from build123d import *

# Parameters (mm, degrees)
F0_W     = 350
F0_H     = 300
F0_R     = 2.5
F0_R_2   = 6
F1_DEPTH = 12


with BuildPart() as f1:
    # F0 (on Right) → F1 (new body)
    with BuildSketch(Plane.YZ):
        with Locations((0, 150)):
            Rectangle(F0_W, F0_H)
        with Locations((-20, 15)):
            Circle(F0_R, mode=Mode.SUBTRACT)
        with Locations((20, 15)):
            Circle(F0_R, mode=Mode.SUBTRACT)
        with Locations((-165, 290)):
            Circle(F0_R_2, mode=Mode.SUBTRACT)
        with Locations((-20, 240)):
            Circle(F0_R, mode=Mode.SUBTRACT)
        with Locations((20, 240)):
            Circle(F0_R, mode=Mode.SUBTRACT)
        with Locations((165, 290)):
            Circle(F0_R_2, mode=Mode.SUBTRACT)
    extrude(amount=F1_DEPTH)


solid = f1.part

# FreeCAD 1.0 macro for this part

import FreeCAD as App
import Part
import Sketcher
from FreeCAD import Vector


def add_polygon(sketch, points):
    """Adds a closed chain of lines whose ends are joined by coincident constraints."""
    first, n = sketch.GeometryCount, len(points)
    for a, b in zip(points, points[1:] + points[:1]):
        sketch.addGeometry(Part.LineSegment(App.Vector(*a, 0), App.Vector(*b, 0)), False)
    for i in range(n):
        sketch.addConstraint(Sketcher.Constraint("Coincident", first + i, 2, first + (i + 1) % n, 1))

doc = App.newDocument("Part")
params = doc.addObject("Spreadsheet::Sheet", "Params")
for row, (alias, value) in enumerate([
    ("sketch1_diameter", "5 mm"),
    ("sketch1_diameter2", "12 mm"),
    ("sketch1_width", "350 mm"),
    ("sketch1_height", "300 mm"),
    ("pad1_length", "12 mm"),
], start=1):
    params.set(f"A{row}", alias)
    params.set(f"B{row}", "=" + value)
    params.setAlias(f"B{row}", alias)

body = doc.addObject("PartDesign::Body", "Body")

# Sketch on YZ plane
sketch1 = body.newObject("Sketcher::SketchObject", "Sketch")
sketch1.AttachmentSupport = (doc.getObject("YZ_Plane"), [""])
sketch1.MapMode = "FlatFace"
add_polygon(sketch1, [(-175, 300), (-175, 0), (175, 0), (175, 300)])  # lines 0-3
sketch1.addGeometry(Part.Circle(Vector(-20, 15, 0), Vector(0, 0, 1), 2.5), False)  # 4
sketch1.addGeometry(Part.Circle(Vector(20, 15, 0), Vector(0, 0, 1), 2.5), False)  # 5
sketch1.addGeometry(Part.Circle(Vector(-165, 290, 0), Vector(0, 0, 1), 6), False)  # 6
sketch1.addGeometry(Part.Circle(Vector(-20, 240, 0), Vector(0, 0, 1), 2.5), False)  # 7
sketch1.addGeometry(Part.Circle(Vector(20, 240, 0), Vector(0, 0, 1), 2.5), False)  # 8
sketch1.addGeometry(Part.Circle(Vector(165, 290, 0), Vector(0, 0, 1), 6), False)  # 9
sketch1.addConstraint([
    Sketcher.Constraint("Vertical", 0),
    Sketcher.Constraint("Horizontal", 1),
    Sketcher.Constraint("Vertical", 2),
    Sketcher.Constraint("Horizontal", 3),
    Sketcher.Constraint("Equal", 4, 5),
    Sketcher.Constraint("Equal", 5, 7),
    Sketcher.Constraint("Equal", 7, 8),
    Sketcher.Constraint("Equal", 6, 9),
    Sketcher.Constraint("Symmetric", 0, 2, 1, 2, -1, 1),
    Sketcher.Constraint("Symmetric", 4, 3, 5, 3, -2),
    Sketcher.Constraint("Symmetric", 7, 3, 8, 3, -2),
    Sketcher.Constraint("Symmetric", 6, 3, 9, 3, -2),
    Sketcher.Constraint("Vertical", 4, 3, 7, 3),
    Sketcher.Constraint("Diameter", 4, 5.0),
    Sketcher.Constraint("Diameter", 6, 12.0),
    Sketcher.Constraint("DistanceX", 1, 1, 1, 2, 350.0),
    Sketcher.Constraint("DistanceY", 0, 2, 0, 1, 300.0),
    Sketcher.Constraint("DistanceX", 4, 3, -1, 1, 20.0),
    Sketcher.Constraint("DistanceY", -1, 1, 4, 3, 15.0),
    Sketcher.Constraint("DistanceX", 6, 3, -1, 1, 165.0),
    Sketcher.Constraint("DistanceY", -1, 1, 6, 3, 290.0),
    Sketcher.Constraint("DistanceY", -1, 1, 7, 3, 240.0),
])
sketch1.setExpression("Constraints[17]", "Params.sketch1_diameter")
sketch1.setExpression("Constraints[18]", "Params.sketch1_diameter2")
sketch1.setExpression("Constraints[19]", "Params.sketch1_width")
sketch1.setExpression("Constraints[20]", "Params.sketch1_height")
pad1 = body.newObject("PartDesign::Pad", "Pad")
pad1.Profile = sketch1
pad1.setExpression("Length", "Params.pad1_length")

doc.recompute()
